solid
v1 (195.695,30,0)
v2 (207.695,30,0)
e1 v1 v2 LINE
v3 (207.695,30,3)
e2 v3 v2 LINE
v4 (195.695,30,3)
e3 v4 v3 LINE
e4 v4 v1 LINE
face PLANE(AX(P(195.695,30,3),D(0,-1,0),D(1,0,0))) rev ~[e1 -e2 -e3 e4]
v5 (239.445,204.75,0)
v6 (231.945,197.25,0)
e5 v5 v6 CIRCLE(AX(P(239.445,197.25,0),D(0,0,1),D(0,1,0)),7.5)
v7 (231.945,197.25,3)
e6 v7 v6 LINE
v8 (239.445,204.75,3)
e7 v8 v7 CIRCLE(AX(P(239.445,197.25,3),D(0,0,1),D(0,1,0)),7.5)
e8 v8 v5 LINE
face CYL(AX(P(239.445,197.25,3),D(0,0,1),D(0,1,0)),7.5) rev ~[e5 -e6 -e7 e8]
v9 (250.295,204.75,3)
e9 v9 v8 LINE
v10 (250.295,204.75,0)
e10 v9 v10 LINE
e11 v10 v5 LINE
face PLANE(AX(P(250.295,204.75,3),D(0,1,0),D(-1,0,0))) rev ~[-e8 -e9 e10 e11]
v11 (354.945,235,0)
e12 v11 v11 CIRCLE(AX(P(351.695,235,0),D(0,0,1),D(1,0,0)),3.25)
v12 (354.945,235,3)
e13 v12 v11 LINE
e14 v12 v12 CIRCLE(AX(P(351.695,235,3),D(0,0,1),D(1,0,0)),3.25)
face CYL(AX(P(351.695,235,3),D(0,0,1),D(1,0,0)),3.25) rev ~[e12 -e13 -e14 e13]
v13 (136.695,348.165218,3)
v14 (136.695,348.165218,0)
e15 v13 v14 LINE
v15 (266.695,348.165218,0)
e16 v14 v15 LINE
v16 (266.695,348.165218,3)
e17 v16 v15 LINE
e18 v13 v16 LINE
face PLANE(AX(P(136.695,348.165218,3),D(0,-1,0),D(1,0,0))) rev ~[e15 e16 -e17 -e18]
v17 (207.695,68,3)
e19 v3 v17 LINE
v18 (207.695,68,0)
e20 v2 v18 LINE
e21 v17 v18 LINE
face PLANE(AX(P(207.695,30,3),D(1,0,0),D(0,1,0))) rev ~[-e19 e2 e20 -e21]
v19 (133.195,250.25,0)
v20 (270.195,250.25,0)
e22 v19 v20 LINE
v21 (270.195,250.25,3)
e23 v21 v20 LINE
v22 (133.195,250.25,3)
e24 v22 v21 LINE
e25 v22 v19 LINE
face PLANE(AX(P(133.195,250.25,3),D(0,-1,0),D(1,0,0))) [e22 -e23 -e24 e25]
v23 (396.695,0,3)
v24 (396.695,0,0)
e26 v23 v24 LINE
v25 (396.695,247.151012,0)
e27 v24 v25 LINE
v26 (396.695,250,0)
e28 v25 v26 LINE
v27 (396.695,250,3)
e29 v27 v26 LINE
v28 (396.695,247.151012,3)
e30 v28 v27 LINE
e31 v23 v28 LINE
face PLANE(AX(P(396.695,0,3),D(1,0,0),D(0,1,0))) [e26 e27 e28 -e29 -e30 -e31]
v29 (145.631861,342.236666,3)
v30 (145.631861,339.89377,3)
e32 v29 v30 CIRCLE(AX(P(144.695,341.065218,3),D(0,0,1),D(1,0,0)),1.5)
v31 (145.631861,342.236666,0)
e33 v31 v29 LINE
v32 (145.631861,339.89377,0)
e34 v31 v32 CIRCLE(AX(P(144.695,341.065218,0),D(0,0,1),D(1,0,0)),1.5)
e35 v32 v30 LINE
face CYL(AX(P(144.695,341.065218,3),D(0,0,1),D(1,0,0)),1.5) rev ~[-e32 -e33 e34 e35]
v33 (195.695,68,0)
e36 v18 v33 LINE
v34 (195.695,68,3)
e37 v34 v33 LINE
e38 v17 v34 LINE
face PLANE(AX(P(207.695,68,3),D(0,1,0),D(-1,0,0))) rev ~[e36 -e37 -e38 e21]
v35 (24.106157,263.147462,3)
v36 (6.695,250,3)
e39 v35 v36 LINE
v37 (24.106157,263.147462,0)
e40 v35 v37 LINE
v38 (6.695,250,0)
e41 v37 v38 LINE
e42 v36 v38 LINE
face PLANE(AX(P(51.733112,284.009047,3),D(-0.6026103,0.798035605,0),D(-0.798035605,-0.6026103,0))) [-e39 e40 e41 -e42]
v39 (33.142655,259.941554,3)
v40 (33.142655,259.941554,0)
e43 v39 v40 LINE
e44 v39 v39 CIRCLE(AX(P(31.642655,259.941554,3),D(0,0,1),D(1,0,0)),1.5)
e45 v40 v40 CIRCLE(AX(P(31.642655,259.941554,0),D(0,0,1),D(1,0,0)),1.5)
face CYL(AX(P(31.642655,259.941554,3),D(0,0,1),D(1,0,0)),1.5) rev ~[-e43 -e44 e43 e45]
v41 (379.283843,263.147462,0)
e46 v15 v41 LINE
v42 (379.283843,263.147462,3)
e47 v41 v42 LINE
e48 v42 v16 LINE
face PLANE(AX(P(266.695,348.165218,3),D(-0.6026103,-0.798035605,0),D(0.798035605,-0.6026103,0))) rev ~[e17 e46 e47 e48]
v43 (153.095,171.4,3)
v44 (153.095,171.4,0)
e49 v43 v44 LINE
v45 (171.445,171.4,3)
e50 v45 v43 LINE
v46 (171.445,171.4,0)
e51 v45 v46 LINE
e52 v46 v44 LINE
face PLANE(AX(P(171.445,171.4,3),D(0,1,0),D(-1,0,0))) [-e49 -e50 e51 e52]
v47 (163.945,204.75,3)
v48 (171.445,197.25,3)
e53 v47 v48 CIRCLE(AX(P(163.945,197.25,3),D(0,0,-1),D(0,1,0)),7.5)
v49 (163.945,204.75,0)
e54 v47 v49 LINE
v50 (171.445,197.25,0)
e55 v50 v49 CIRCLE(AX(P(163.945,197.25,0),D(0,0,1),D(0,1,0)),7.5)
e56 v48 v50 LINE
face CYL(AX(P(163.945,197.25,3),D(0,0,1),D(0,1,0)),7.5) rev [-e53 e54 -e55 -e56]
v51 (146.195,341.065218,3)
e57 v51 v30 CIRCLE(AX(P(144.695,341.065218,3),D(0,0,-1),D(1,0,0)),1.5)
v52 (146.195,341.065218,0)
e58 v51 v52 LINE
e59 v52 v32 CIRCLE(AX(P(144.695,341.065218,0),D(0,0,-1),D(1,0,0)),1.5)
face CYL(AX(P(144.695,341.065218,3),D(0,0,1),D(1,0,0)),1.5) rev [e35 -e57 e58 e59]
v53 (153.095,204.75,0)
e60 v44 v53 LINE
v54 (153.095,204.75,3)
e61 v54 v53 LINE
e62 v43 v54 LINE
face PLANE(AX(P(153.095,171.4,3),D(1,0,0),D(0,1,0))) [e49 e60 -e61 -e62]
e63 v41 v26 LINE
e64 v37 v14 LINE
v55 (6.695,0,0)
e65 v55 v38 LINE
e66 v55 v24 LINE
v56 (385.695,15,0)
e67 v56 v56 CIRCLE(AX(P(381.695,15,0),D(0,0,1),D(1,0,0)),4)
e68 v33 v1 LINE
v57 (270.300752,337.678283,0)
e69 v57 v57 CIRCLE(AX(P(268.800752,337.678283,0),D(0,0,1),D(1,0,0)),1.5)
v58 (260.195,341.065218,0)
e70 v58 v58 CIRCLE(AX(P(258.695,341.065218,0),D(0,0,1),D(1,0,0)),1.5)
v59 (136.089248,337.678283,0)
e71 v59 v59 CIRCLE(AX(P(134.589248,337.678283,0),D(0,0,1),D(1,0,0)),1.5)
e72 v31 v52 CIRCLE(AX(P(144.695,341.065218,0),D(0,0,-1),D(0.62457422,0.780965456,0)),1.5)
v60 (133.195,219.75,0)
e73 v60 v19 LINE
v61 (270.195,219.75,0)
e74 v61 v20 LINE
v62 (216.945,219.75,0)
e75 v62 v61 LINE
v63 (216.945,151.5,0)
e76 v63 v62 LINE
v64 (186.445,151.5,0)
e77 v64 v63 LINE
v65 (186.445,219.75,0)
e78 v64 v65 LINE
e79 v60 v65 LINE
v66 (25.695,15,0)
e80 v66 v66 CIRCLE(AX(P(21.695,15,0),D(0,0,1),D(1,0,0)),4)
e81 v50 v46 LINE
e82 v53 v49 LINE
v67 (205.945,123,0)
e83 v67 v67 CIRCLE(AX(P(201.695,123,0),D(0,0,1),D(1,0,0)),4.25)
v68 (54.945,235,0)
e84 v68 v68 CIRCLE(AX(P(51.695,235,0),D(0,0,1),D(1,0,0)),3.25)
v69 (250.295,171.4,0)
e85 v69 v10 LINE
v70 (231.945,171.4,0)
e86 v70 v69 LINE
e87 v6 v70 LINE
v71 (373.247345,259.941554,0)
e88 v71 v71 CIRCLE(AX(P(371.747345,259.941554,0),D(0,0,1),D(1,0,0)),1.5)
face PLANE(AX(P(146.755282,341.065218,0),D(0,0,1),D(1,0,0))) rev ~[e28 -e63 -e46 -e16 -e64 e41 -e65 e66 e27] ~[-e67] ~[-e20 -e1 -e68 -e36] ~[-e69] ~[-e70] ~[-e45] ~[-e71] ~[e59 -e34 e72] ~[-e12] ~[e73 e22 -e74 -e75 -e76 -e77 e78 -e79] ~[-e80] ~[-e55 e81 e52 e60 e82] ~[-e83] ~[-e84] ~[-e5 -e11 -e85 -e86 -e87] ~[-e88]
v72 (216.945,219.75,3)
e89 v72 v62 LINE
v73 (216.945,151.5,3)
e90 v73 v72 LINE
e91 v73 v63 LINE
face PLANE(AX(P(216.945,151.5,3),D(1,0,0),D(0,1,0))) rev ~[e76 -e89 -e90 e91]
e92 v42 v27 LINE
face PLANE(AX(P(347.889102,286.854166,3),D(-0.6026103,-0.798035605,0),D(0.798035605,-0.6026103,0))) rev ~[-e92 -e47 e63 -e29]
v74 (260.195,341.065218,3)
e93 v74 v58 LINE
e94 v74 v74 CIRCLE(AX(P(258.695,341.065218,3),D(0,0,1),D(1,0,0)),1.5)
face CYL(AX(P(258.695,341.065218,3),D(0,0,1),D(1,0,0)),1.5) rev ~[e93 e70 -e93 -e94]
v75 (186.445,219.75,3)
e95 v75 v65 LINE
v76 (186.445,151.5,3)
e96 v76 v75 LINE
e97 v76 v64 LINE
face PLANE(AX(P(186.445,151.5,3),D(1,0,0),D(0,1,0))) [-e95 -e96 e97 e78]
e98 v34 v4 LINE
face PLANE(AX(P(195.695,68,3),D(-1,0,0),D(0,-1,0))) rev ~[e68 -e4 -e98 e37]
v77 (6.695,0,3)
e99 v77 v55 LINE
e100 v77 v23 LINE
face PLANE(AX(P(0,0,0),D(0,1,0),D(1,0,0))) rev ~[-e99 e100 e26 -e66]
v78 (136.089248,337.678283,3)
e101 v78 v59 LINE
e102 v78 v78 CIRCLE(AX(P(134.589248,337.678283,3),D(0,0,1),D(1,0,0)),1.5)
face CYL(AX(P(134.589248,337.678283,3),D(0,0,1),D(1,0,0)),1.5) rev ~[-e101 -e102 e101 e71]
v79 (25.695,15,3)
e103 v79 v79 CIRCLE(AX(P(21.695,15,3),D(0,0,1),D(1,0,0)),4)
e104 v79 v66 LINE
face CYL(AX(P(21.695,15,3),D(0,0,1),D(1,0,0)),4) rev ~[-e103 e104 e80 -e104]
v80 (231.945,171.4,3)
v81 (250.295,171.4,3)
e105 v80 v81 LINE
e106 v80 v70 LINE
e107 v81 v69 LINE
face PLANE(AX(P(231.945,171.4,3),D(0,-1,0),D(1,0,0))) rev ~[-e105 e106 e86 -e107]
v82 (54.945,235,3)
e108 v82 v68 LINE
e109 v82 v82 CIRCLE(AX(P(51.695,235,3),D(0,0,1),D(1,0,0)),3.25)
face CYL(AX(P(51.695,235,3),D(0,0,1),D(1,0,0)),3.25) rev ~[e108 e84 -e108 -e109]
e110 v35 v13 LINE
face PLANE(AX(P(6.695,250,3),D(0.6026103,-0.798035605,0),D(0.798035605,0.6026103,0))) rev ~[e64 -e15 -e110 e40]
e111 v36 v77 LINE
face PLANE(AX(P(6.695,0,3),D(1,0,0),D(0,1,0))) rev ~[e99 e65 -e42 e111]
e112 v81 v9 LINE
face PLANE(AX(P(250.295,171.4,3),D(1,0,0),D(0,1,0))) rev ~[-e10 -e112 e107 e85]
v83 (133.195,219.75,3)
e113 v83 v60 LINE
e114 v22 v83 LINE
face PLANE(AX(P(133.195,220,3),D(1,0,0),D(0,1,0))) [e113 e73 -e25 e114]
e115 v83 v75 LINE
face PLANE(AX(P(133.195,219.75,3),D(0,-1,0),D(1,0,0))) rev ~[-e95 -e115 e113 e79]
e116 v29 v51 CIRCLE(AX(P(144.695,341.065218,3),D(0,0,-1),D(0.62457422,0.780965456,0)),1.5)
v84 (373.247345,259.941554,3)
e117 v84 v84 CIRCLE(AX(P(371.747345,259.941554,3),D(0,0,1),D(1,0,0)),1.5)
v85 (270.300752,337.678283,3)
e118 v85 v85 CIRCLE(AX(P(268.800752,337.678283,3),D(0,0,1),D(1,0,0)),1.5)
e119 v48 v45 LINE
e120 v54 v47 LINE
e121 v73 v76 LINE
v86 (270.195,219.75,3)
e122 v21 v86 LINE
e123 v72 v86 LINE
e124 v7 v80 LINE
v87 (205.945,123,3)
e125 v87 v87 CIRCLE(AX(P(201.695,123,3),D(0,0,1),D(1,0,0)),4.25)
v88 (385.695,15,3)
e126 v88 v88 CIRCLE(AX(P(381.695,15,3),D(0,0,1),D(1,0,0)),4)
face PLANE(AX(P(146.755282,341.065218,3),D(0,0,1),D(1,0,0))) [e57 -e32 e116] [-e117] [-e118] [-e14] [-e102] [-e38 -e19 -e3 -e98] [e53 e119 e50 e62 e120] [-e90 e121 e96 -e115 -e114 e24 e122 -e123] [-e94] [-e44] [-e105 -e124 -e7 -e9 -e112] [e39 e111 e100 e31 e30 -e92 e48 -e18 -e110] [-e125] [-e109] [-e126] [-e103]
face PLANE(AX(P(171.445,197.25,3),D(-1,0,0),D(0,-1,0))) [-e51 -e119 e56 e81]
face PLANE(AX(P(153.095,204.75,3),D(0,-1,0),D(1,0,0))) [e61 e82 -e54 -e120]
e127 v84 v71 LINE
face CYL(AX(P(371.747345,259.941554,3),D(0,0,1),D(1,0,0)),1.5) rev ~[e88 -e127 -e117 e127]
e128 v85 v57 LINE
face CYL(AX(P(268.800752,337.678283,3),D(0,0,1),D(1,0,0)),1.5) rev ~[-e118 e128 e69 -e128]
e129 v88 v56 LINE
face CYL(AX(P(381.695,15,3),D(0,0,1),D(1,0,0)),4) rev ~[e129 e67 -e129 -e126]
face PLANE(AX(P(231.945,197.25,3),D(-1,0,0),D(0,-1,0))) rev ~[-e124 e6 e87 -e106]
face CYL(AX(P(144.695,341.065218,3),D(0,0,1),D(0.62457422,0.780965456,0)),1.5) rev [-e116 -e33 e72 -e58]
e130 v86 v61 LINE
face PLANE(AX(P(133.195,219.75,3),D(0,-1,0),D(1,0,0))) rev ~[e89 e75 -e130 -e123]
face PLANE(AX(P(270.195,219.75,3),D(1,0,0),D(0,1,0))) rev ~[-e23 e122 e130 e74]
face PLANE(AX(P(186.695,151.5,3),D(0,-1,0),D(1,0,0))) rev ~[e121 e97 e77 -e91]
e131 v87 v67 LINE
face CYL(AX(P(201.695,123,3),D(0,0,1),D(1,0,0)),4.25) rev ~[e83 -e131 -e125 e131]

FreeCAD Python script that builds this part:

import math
import FreeCAD as App
import Part
import Sketcher


def add_polygon(sketch, points):
    """Adds a closed chain of lines whose ends are joined by coincident constraints."""
    first, n = sketch.GeometryCount, len(points)
    for a, b in zip(points, points[1:] + points[:1]):
        sketch.addGeometry(Part.LineSegment(App.Vector(*a, 0), App.Vector(*b, 0)), False)
    for i in range(n):
        sketch.addConstraint(Sketcher.Constraint("Coincident", first + i, 2, first + (i + 1) % n, 1))

doc = App.newDocument("Part")
body = doc.addObject("PartDesign::Body", "Body")

# Sketch on XY plane
sketch1 = body.newObject("Sketcher::SketchObject", "Sketch")
sketch1.AttachmentSupport = (doc.getObject("XY_Plane"), [""])
sketch1.MapMode = "FlatFace"
add_polygon(sketch1, [(0, 0), (403.4, 0), (403.4, 241), (274.4, 359.5), (129, 359.5), (0, 241)])  # lines 0-5
add_polygon(sketch1, [(246.7, 223), (216.7, 223), (216.7, 219.8), (186.7, 219.8), (186.7, 223), (156.7, 223), (156.7, 253), (246.7, 253)])  # lines 6-13
sketch1.addConstraint(Sketcher.Constraint("Horizontal", 0))
sketch1.addConstraint(Sketcher.Constraint("Vertical", 1))
sketch1.addConstraint(Sketcher.Constraint("Horizontal", 3))
sketch1.addConstraint(Sketcher.Constraint("Vertical", 5))
sketch1.addConstraint(Sketcher.Constraint("Horizontal", 6))
sketch1.addConstraint(Sketcher.Constraint("Vertical", 7))
sketch1.addConstraint(Sketcher.Constraint("Horizontal", 8))
sketch1.addConstraint(Sketcher.Constraint("Vertical", 9))
sketch1.addConstraint(Sketcher.Constraint("Horizontal", 10))
sketch1.addConstraint(Sketcher.Constraint("Vertical", 11))
sketch1.addConstraint(Sketcher.Constraint("Horizontal", 12))
sketch1.addConstraint(Sketcher.Constraint("Vertical", 13))
sketch1.addConstraint(Sketcher.Constraint("Coincident", 5, 2, -1, 1))
sketch1.addConstraint(Sketcher.Constraint("Horizontal", 1, 2, 4, 2))
sketch1.addConstraint(Sketcher.Constraint("Horizontal", 6, 2, 9, 2))
sketch1.addConstraint(Sketcher.Constraint("Equal", 6, 8))
sketch1.addConstraint(Sketcher.Constraint("Equal", 8, 10))
sketch1.addConstraint(Sketcher.Constraint("Equal", 10, 11))
sketch1.addConstraint(Sketcher.Constraint("Equal", 2, 4))
sketch1.addConstraint(Sketcher.Constraint("DistanceX", 6, 2, 6, 1, 30.0))
sketch1.addConstraint(Sketcher.Constraint("DistanceY", 1, 1, 1, 2, 241.0))
sketch1.addConstraint(Sketcher.Constraint("DistanceY", -1, 1, 6, 2, 223.0))
sketch1.addConstraint(Sketcher.Constraint("DistanceX", 0, 1, 0, 2, 403.39))
sketch1.addConstraint(Sketcher.Constraint("DistanceX", 3, 2, 3, 1, 145.43))
sketch1.addConstraint(Sketcher.Constraint("DistanceY", -1, 1, 2, 2, 359.5))
sketch1.addConstraint(Sketcher.Constraint("DistanceY", 7, 2, 7, 1, 3.175))
sketch1.addConstraint(Sketcher.Constraint("DistanceX", -1, 1, 6, 2, 216.695))
pad1 = body.newObject("PartDesign::Pad", "Pad")
pad1.Profile = sketch1
pad1.Length = 3

# Sketch on XY plane
sketch2 = body.newObject("Sketcher::SketchObject", "Sketch001")
sketch2.AttachmentSupport = (doc.getObject("XY_Plane"), [""])
sketch2.MapMode = "FlatFace"
sketch2.AttachmentOffset = App.Placement(App.Vector(0, 0, 3), App.Rotation())
add_polygon(sketch2, [(-44, 365), (-44, 0), (7, 0), (7, 365)])  # lines 0-3
add_polygon(sketch2, [(397, 356), (397, 0), (518, 0), (518, 356)])  # lines 4-7
sketch2.addConstraint(Sketcher.Constraint("Vertical", 0))
sketch2.addConstraint(Sketcher.Constraint("Horizontal", 1))
sketch2.addConstraint(Sketcher.Constraint("Vertical", 2))
sketch2.addConstraint(Sketcher.Constraint("Horizontal", 3))
sketch2.addConstraint(Sketcher.Constraint("Vertical", 4))
sketch2.addConstraint(Sketcher.Constraint("Horizontal", 5))
sketch2.addConstraint(Sketcher.Constraint("Vertical", 6))
sketch2.addConstraint(Sketcher.Constraint("Horizontal", 7))
sketch2.addConstraint(Sketcher.Constraint("PointOnObject", 0, 2, -1))
sketch2.addConstraint(Sketcher.Constraint("PointOnObject", 4, 2, -1))
sketch2.addConstraint(Sketcher.Constraint("DistanceX", 1, 2, 4, 2, 390.0))
sketch2.addConstraint(Sketcher.Constraint("DistanceX", -1, 1, 1, 2, 6.695))
sketch2.addConstraint(Sketcher.Constraint("DistanceX", 5, 1, 5, 2, 121.011581))
sketch2.addConstraint(Sketcher.Constraint("DistanceY", 0, 2, 0, 1, 364.883291))
sketch2.addConstraint(Sketcher.Constraint("DistanceY", 4, 2, 4, 1, 356.316712))
sketch2.addConstraint(Sketcher.Constraint("DistanceX", 1, 1, 1, 2, 50.575265))
pocket1 = body.newObject("PartDesign::Pocket", "Pocket")
pocket1.Profile = sketch2
pocket1.Length = 10

# Sketch on XY plane
sketch3 = body.newObject("Sketcher::SketchObject", "Sketch002")
sketch3.AttachmentSupport = (doc.getObject("XY_Plane"), [""])
sketch3.MapMode = "FlatFace"
sketch3.AttachmentOffset = App.Placement(App.Vector(0, 0, 3), App.Rotation())
add_polygon(sketch3, [(7, 250), (7, 0), (397, 0), (397, 250)])  # lines 0-3
sketch3.addConstraint(Sketcher.Constraint("Vertical", 0))
sketch3.addConstraint(Sketcher.Constraint("Horizontal", 1))
sketch3.addConstraint(Sketcher.Constraint("Vertical", 2))
sketch3.addConstraint(Sketcher.Constraint("Horizontal", 3))
sketch3.addConstraint(Sketcher.Constraint("PointOnObject", 0, 2, -1))
sketch3.addConstraint(Sketcher.Constraint("DistanceX", 1, 1, 1, 2, 390.0))
sketch3.addConstraint(Sketcher.Constraint("DistanceY", 0, 2, 0, 1, 250.0))
sketch3.addConstraint(Sketcher.Constraint("DistanceX", -1, 1, 0, 2, 6.695))
pad2 = body.newObject("PartDesign::Pad", "Pad001")
pad2.Profile = sketch3
pad2.Length = 3
pad2.Reversed = True

# Sketch on XY plane
sketch4 = body.newObject("Sketcher::SketchObject", "Sketch003")
sketch4.AttachmentSupport = (doc.getObject("XY_Plane"), [""])
sketch4.MapMode = "FlatFace"
sketch4.AttachmentOffset = App.Placement(App.Vector(0, 0, 3), App.Rotation())
add_polygon(sketch4, [(172, 250), (172, 220), (232, 220), (232, 250)])  # lines 0-3
sketch4.addConstraint(Sketcher.Constraint("Vertical", 0))
sketch4.addConstraint(Sketcher.Constraint("Horizontal", 1))
sketch4.addConstraint(Sketcher.Constraint("Vertical", 2))
sketch4.addConstraint(Sketcher.Constraint("Horizontal", 3))
sketch4.addConstraint(Sketcher.Constraint("DistanceX", 1, 1, 1, 2, 60.0))
sketch4.addConstraint(Sketcher.Constraint("DistanceY", 0, 2, 0, 1, 30.0))
sketch4.addConstraint(Sketcher.Constraint("DistanceY", -1, 1, 0, 2, 220.0))
sketch4.addConstraint(Sketcher.Constraint("DistanceX", -1, 1, 0, 2, 171.695))
pocket2 = body.newObject("PartDesign::Pocket", "Pocket001")
pocket2.Profile = sketch4
pocket2.Length = 3

# Sketch on XY plane
sketch5 = body.newObject("Sketcher::SketchObject", "Sketch004")
sketch5.AttachmentSupport = (doc.getObject("XY_Plane"), [""])
sketch5.MapMode = "FlatFace"
sketch5.AttachmentOffset = App.Placement(App.Vector(0, 0, 3), App.Rotation())
add_polygon(sketch5, [(156.7, 253), (156.7, 250), (246.7, 250), (246.7, 253)])  # lines 0-3
sketch5.addConstraint(Sketcher.Constraint("Vertical", 0))
sketch5.addConstraint(Sketcher.Constraint("Horizontal", 1))
sketch5.addConstraint(Sketcher.Constraint("Vertical", 2))
sketch5.addConstraint(Sketcher.Constraint("Horizontal", 3))
sketch5.addConstraint(Sketcher.Constraint("DistanceX", 1, 1, 1, 2, 90.0))
sketch5.addConstraint(Sketcher.Constraint("DistanceY", 0, 2, 0, 1, 3.0))
sketch5.addConstraint(Sketcher.Constraint("DistanceY", -1, 1, 0, 2, 250.0))
sketch5.addConstraint(Sketcher.Constraint("DistanceX", -1, 1, 0, 2, 156.695))
pad3 = body.newObject("PartDesign::Pad", "Pad002")
pad3.Profile = sketch5
pad3.Length = 3
pad3.Reversed = True

# Sketch on XY plane
sketch6 = body.newObject("Sketcher::SketchObject", "Sketch005")
sketch6.AttachmentSupport = (doc.getObject("XY_Plane"), [""])
sketch6.MapMode = "FlatFace"
sketch6.AttachmentOffset = App.Placement(App.Vector(0, 0, 3), App.Rotation())
add_polygon(sketch6, [(187, 220), (187, 190), (217, 190), (217, 220)])  # lines 0-3
sketch6.addConstraint(Sketcher.Constraint("Vertical", 0))
sketch6.addConstraint(Sketcher.Constraint("Horizontal", 1))
sketch6.addConstraint(Sketcher.Constraint("Vertical", 2))
sketch6.addConstraint(Sketcher.Constraint("Horizontal", 3))
sketch6.addConstraint(Sketcher.Constraint("Equal", 3, 0))
sketch6.addConstraint(Sketcher.Constraint("DistanceX", 1, 1, 1, 2, 30.0))
sketch6.addConstraint(Sketcher.Constraint("DistanceY", -1, 1, 0, 2, 190.0))
sketch6.addConstraint(Sketcher.Constraint("DistanceX", -1, 1, 0, 2, 186.695))
pocket3 = body.newObject("PartDesign::Pocket", "Pocket002")
pocket3.Profile = sketch6
pocket3.Length = 3

# Sketch on XY plane
sketch7 = body.newObject("Sketcher::SketchObject", "Sketch006")
sketch7.AttachmentSupport = (doc.getObject("XY_Plane"), [""])
sketch7.MapMode = "FlatFace"
sketch7.AttachmentOffset = App.Placement(App.Vector(0, 0, 3), App.Rotation())
add_polygon(sketch7, [(187, 190), (187, 152), (217, 152), (217, 190)])  # lines 0-3
sketch7.addConstraint(Sketcher.Constraint("Vertical", 0))
sketch7.addConstraint(Sketcher.Constraint("Horizontal", 1))
sketch7.addConstraint(Sketcher.Constraint("Vertical", 2))
sketch7.addConstraint(Sketcher.Constraint("Horizontal", 3))
sketch7.addConstraint(Sketcher.Constraint("DistanceX", 1, 1, 1, 2, 30.0))
sketch7.addConstraint(Sketcher.Constraint("DistanceY", 0, 2, 0, 1, 38.5))
sketch7.addConstraint(Sketcher.Constraint("DistanceY", -1, 1, 2, 2, 190.0))
sketch7.addConstraint(Sketcher.Constraint("DistanceX", -1, 1, 0, 2, 186.695))
pocket4 = body.newObject("PartDesign::Pocket", "Pocket003")
pocket4.Profile = sketch7
pocket4.Length = 3

# Sketch on XY plane
sketch8 = body.newObject("Sketcher::SketchObject", "Sketch007")
sketch8.AttachmentSupport = (doc.getObject("XY_Plane"), [""])
sketch8.MapMode = "FlatFace"
sketch8.AttachmentOffset = App.Placement(App.Vector(0, 0, 3), App.Rotation())
add_polygon(sketch8, [(133, 250), (133, 220), (172, 220), (172, 250)])  # lines 0-3
add_polygon(sketch8, [(232, 250), (232, 220), (270, 220), (270, 250)])  # lines 4-7
sketch8.addConstraint(Sketcher.Constraint("Vertical", 0))
sketch8.addConstraint(Sketcher.Constraint("Horizontal", 1))
sketch8.addConstraint(Sketcher.Constraint("Vertical", 2))
sketch8.addConstraint(Sketcher.Constraint("Horizontal", 3))
sketch8.addConstraint(Sketcher.Constraint("Vertical", 4))
sketch8.addConstraint(Sketcher.Constraint("Horizontal", 5))
sketch8.addConstraint(Sketcher.Constraint("Vertical", 6))
sketch8.addConstraint(Sketcher.Constraint("Horizontal", 7))
sketch8.addConstraint(Sketcher.Constraint("Horizontal", 1, 2, 4, 2))
sketch8.addConstraint(Sketcher.Constraint("Horizontal", 3, 2, 6, 2))
sketch8.addConstraint(Sketcher.Constraint("Equal", 3, 5))
sketch8.addConstraint(Sketcher.Constraint("DistanceY", 0, 2, 0, 1, 30.0))
sketch8.addConstraint(Sketcher.Constraint("DistanceX", 1, 1, 1, 2, 38.5))
sketch8.addConstraint(Sketcher.Constraint("DistanceY", -1, 1, 0, 2, 220.0))
sketch8.addConstraint(Sketcher.Constraint("DistanceX", 1, 2, 4, 2, 60.0))
sketch8.addConstraint(Sketcher.Constraint("DistanceX", -1, 1, 0, 2, 133.195))
pocket5 = body.newObject("PartDesign::Pocket", "Pocket004")
pocket5.Profile = sketch8
pocket5.Length = 3

# Sketch on XY plane
sketch9 = body.newObject("Sketcher::SketchObject", "Sketch008")
sketch9.AttachmentSupport = (doc.getObject("XY_Plane"), [""])
sketch9.MapMode = "FlatFace"
sketch9.AttachmentOffset = App.Placement(App.Vector(0, 0, 3), App.Rotation())
add_polygon(sketch9, [(133.19, 250.25), (133.19, 250), (270.19, 250), (270.19, 250.25)])  # lines 0-3
add_polygon(sketch9, [(133.19, 220), (133.19, 219.75), (270.19, 219.75), (270.19, 220)])  # lines 4-7
sketch9.addConstraint(Sketcher.Constraint("Vertical", 0))
sketch9.addConstraint(Sketcher.Constraint("Horizontal", 1))
sketch9.addConstraint(Sketcher.Constraint("Vertical", 2))
sketch9.addConstraint(Sketcher.Constraint("Horizontal", 3))
sketch9.addConstraint(Sketcher.Constraint("Vertical", 4))
sketch9.addConstraint(Sketcher.Constraint("Horizontal", 5))
sketch9.addConstraint(Sketcher.Constraint("Vertical", 6))
sketch9.addConstraint(Sketcher.Constraint("Horizontal", 7))
sketch9.addConstraint(Sketcher.Constraint("Vertical", 3, 2, 4, 2))
sketch9.addConstraint(Sketcher.Constraint("Vertical", 2, 2, 5, 2))
sketch9.addConstraint(Sketcher.Constraint("Equal", 2, 4))
sketch9.addConstraint(Sketcher.Constraint("DistanceX", 1, 1, 1, 2, 137.0))
sketch9.addConstraint(Sketcher.Constraint("DistanceY", -1, 1, 0, 2, 250.0))
sketch9.addConstraint(Sketcher.Constraint("DistanceY", -1, 1, 6, 2, 220.0))
sketch9.addConstraint(Sketcher.Constraint("DistanceY", 0, 2, 0, 1, 0.25))
sketch9.addConstraint(Sketcher.Constraint("DistanceX", -1, 1, 0, 2, 133.195))
pocket6 = body.newObject("PartDesign::Pocket", "Pocket005")
pocket6.Profile = sketch9
pocket6.Length = 3

# Sketch on XY plane
sketch10 = body.newObject("Sketcher::SketchObject", "Sketch009")
sketch10.AttachmentSupport = (doc.getObject("XY_Plane"), [""])
sketch10.MapMode = "FlatFace"
sketch10.AttachmentOffset = App.Placement(App.Vector(0, 0, 3), App.Rotation())
add_polygon(sketch10, [(186.44, 219.75), (186.44, 151.5), (186.69, 151.5), (186.69, 219.75)])  # lines 0-3
add_polygon(sketch10, [(216.69, 219.75), (216.69, 151.5), (216.94, 151.5), (216.94, 219.75)])  # lines 4-7
sketch10.addConstraint(Sketcher.Constraint("Vertical", 0))
sketch10.addConstraint(Sketcher.Constraint("Horizontal", 1))
sketch10.addConstraint(Sketcher.Constraint("Vertical", 2))
sketch10.addConstraint(Sketcher.Constraint("Horizontal", 3))
sketch10.addConstraint(Sketcher.Constraint("Vertical", 4))
sketch10.addConstraint(Sketcher.Constraint("Horizontal", 5))
sketch10.addConstraint(Sketcher.Constraint("Vertical", 6))
sketch10.addConstraint(Sketcher.Constraint("Horizontal", 7))
sketch10.addConstraint(Sketcher.Constraint("Horizontal", 1, 2, 4, 2))
sketch10.addConstraint(Sketcher.Constraint("Horizontal", 3, 2, 6, 2))
sketch10.addConstraint(Sketcher.Constraint("Equal", 3, 5))
sketch10.addConstraint(Sketcher.Constraint("DistanceX", 1, 2, 4, 2, 30.0))
sketch10.addConstraint(Sketcher.Constraint("DistanceX", 1, 1, 1, 2, 0.25))
sketch10.addConstraint(Sketcher.Constraint("DistanceY", 0, 2, 0, 1, 68.25))
sketch10.addConstraint(Sketcher.Constraint("DistanceY", -1, 1, 0, 2, 151.5))
sketch10.addConstraint(Sketcher.Constraint("DistanceX", -1, 1, 0, 2, 186.445))
pocket7 = body.newObject("PartDesign::Pocket", "Pocket006")
pocket7.Profile = sketch10
pocket7.Length = 3

# Sketch on XY plane
sketch11 = body.newObject("Sketcher::SketchObject", "Sketch010")
sketch11.AttachmentSupport = (doc.getObject("XY_Plane"), [""])
sketch11.MapMode = "FlatFace"
sketch11.AttachmentOffset = App.Placement(App.Vector(0, 0, 3), App.Rotation())
add_polygon(sketch11, [(137, 348), (267, 348), (397, 250), (402, 389), (24, 412), (7, 250)])  # lines 0-5
sketch11.addConstraint(Sketcher.Constraint("Horizontal", 0))
sketch11.addConstraint(Sketcher.Constraint("Horizontal", 1, 2, 4, 2))
sketch11.addConstraint(Sketcher.Constraint("Equal", 1, 5))
sketch11.addConstraint(Sketcher.Constraint("DistanceX", 0, 1, 0, 2, 130.0))
sketch11.addConstraint(Sketcher.Constraint("DistanceY", -1, 1, 1, 2, 250.0))
sketch11.addConstraint(Sketcher.Constraint("DistanceX", 0, 2, 1, 2, 130.0))
sketch11.addConstraint(Sketcher.Constraint("Distance", 1, 162.9))
sketch11.addConstraint(Sketcher.Constraint("DistanceX", -1, 1, 0, 2, 266.695))
sketch11.addConstraint(Sketcher.Constraint("DistanceX", -1, 1, 3, 2, 24.2519))
sketch11.addConstraint(Sketcher.Constraint("Distance", 4, 163.06582))
sketch11.addConstraint(Sketcher.Constraint("Distance", 2, 139.418536))
sketch11.addConstraint(Sketcher.Constraint("Distance", 3, 378.678667))
pocket8 = body.newObject("PartDesign::Pocket", "Pocket007")
pocket8.Profile = sketch11
pocket8.Length = 3

# Sketch on XY plane
sketch12 = body.newObject("Sketcher::SketchObject", "Sketch011")
sketch12.AttachmentSupport = (doc.getObject("XY_Plane"), [""])
sketch12.MapMode = "FlatFace"
sketch12.AttachmentOffset = App.Placement(App.Vector(0, 0, 3), App.Rotation())
add_polygon(sketch12, [(52, 284), (7, 250), (32, 217)])  # lines 0-2
add_polygon(sketch12, [(397, 250), (348, 287), (357, 226)])  # lines 3-5
sketch12.addConstraint(Sketcher.Constraint("Perpendicular", 0, 1))
sketch12.addConstraint(Sketcher.Constraint("Horizontal", 0, 2, 5, 2))
sketch12.addConstraint(Sketcher.Constraint("DistanceY", -1, 1, 0, 2, 250.0))
sketch12.addConstraint(Sketcher.Constraint("DistanceX", 0, 2, 5, 2, 390.0))
sketch12.addConstraint(Sketcher.Constraint("DistanceX", -1, 1, 0, 2, 6.695))
sketch12.addConstraint(Sketcher.Constraint("Distance", 0, 56.436219))
sketch12.addConstraint(Sketcher.Constraint("Distance", 1, 41.41212))
sketch12.addConstraint(Sketcher.Constraint("DistanceX", -1, 1, 1, 2, 31.65037))
sketch12.addConstraint(Sketcher.Constraint("DistanceX", 2, 2, 3, 2, 296.15599))
sketch12.addConstraint(Sketcher.Constraint("DistanceY", 2, 2, 3, 2, 2.845119))
sketch12.addConstraint(Sketcher.Constraint("DistanceX", 3, 2, 4, 2, 8.734251))
sketch12.addConstraint(Sketcher.Constraint("DistanceY", 1, 2, 4, 2, 8.77756))
pad4 = body.newObject("PartDesign::Pad", "Pad003")
pad4.Profile = sketch12
pad4.Length = 3
pad4.Reversed = True

# Sketch on XY plane
sketch13 = body.newObject("Sketcher::SketchObject", "Sketch012")
sketch13.AttachmentSupport = (doc.getObject("XY_Plane"), [""])
sketch13.MapMode = "FlatFace"
sketch13.AttachmentOffset = App.Placement(App.Vector(0, 0, 3), App.Rotation())
sketch13.addGeometry(Part.Circle(App.Vector(21.7, 15, 0), App.Vector(0, 0, 1), 4), False)
sketch13.addGeometry(Part.Circle(App.Vector(381.7, 15, 0), App.Vector(0, 0, 1), 4), False)
sketch13.addGeometry(Part.Circle(App.Vector(51.7, 235, 0), App.Vector(0, 0, 1), 4), False)
sketch13.addGeometry(Part.Circle(App.Vector(351.7, 235, 0), App.Vector(0, 0, 1), 4), False)
sketch13.addConstraint(Sketcher.Constraint("Equal", 0, 1))
sketch13.addConstraint(Sketcher.Constraint("Equal", 1, 2))
sketch13.addConstraint(Sketcher.Constraint("Equal", 2, 3))
sketch13.addConstraint(Sketcher.Constraint("Horizontal", 0, 3, 1, 3))
sketch13.addConstraint(Sketcher.Constraint("Horizontal", 2, 3, 3, 3))
sketch13.addConstraint(Sketcher.Constraint("Diameter", 0, 8.0))
sketch13.addConstraint(Sketcher.Constraint("DistanceY", -1, 1, 0, 3, 15.0))
sketch13.addConstraint(Sketcher.Constraint("DistanceY", -1, 1, 2, 3, 235.0))
sketch13.addConstraint(Sketcher.Constraint("DistanceX", 0, 3, 1, 3, 360.0))
sketch13.addConstraint(Sketcher.Constraint("DistanceX", 0, 3, 2, 3, 30.0))
sketch13.addConstraint(Sketcher.Constraint("DistanceX", 3, 3, 1, 3, 30.0))
sketch13.addConstraint(Sketcher.Constraint("DistanceX", -1, 1, 0, 3, 21.695))
pocket9 = body.newObject("PartDesign::Pocket", "Pocket008")
pocket9.Profile = sketch13
pocket9.Length = 3

# Sketch on XY plane
sketch14 = body.newObject("Sketcher::SketchObject", "Sketch013")
sketch14.AttachmentSupport = (doc.getObject("XY_Plane"), [""])
sketch14.MapMode = "FlatFace"
sketch14.AttachmentOffset = App.Placement(App.Vector(0, 0, 3), App.Rotation())
sketch14.addGeometry(Part.Circle(App.Vector(51.7, 235, 0), App.Vector(0, 0, 1), 4.2), False)
sketch14.addGeometry(Part.Circle(App.Vector(51.7, 235, 0), App.Vector(0, 0, 1), 3.2), False)
sketch14.addGeometry(Part.Circle(App.Vector(351.7, 235, 0), App.Vector(0, 0, 1), 4.2), False)
sketch14.addGeometry(Part.Circle(App.Vector(351.7, 235, 0), App.Vector(0, 0, 1), 3.2), False)
sketch14.addConstraint(Sketcher.Constraint("Coincident", 1, 3, 0, 3))
sketch14.addConstraint(Sketcher.Constraint("Coincident", 3, 3, 2, 3))
sketch14.addConstraint(Sketcher.Constraint("Equal", 0, 2))
sketch14.addConstraint(Sketcher.Constraint("Equal", 1, 3))
sketch14.addConstraint(Sketcher.Constraint("Horizontal", 1, 3, 2, 3))
sketch14.addConstraint(Sketcher.Constraint("Diameter", 0, 8.5))
sketch14.addConstraint(Sketcher.Constraint("Diameter", 1, 6.5))
sketch14.addConstraint(Sketcher.Constraint("DistanceY", -1, 1, 0, 3, 235.0))
sketch14.addConstraint(Sketcher.Constraint("DistanceX", 0, 3, 2, 3, 300.0))
sketch14.addConstraint(Sketcher.Constraint("DistanceX", -1, 1, 0, 3, 51.695))
pad5 = body.newObject("PartDesign::Pad", "Pad004")
pad5.Profile = sketch14
pad5.Length = 3
pad5.Reversed = True

# Sketch on XY plane
sketch15 = body.newObject("Sketcher::SketchObject", "Sketch014")
sketch15.AttachmentSupport = (doc.getObject("XY_Plane"), [""])
sketch15.MapMode = "FlatFace"
sketch15.AttachmentOffset = App.Placement(App.Vector(0, 0, 3), App.Rotation())
sketch15.addGeometry(Part.Circle(App.Vector(201.7, 35, 0), App.Vector(0, 0, 1), 4.2), False)
sketch15.addGeometry(Part.Circle(App.Vector(201.7, 123, 0), App.Vector(0, 0, 1), 4.2), False)
sketch15.addConstraint(Sketcher.Constraint("Equal", 0, 1))
sketch15.addConstraint(Sketcher.Constraint("Vertical", 0, 3, 1, 3))
sketch15.addConstraint(Sketcher.Constraint("Diameter", 0, 8.5))
sketch15.addConstraint(Sketcher.Constraint("DistanceY", -1, 1, 0, 3, 35.0))
sketch15.addConstraint(Sketcher.Constraint("DistanceY", -1, 1, 1, 3, 123.0))
sketch15.addConstraint(Sketcher.Constraint("DistanceX", -1, 1, 0, 3, 201.695))
pocket10 = body.newObject("PartDesign::Pocket", "Pocket009")
pocket10.Profile = sketch15
pocket10.Length = 3

# Sketch on XY plane
sketch16 = body.newObject("Sketcher::SketchObject", "Sketch015")
sketch16.AttachmentSupport = (doc.getObject("XY_Plane"), [""])
sketch16.MapMode = "FlatFace"
sketch16.AttachmentOffset = App.Placement(App.Vector(0, 0, 3), App.Rotation())
sketch16.addGeometry(Part.Circle(App.Vector(201.7, 38, 0), App.Vector(0, 0, 1), 4.2), False)
sketch16.addConstraint(Sketcher.Constraint("Diameter", 0, 8.5))
sketch16.addConstraint(Sketcher.Constraint("DistanceY", -1, 1, 0, 3, 38.0))
sketch16.addConstraint(Sketcher.Constraint("DistanceX", -1, 1, 0, 3, 201.695))
pocket11 = body.newObject("PartDesign::Pocket", "Pocket010")
pocket11.Profile = sketch16
pocket11.Length = 25

# Sketch on XY plane
sketch17 = body.newObject("Sketcher::SketchObject", "Sketch016")
sketch17.AttachmentSupport = (doc.getObject("XY_Plane"), [""])
sketch17.MapMode = "FlatFace"
sketch17.AttachmentOffset = App.Placement(App.Vector(0, 0, 3), App.Rotation())
sketch17.addGeometry(Part.ArcOfCircle(Part.Circle(App.Vector(201.7, 38, 0), App.Vector(0, 0, 1), 4.2), math.radians(-159), math.radians(-21)), False)
sketch17.addGeometry(Part.ArcOfCircle(Part.Circle(App.Vector(201.7, 35, 0), App.Vector(0, 0, 1), 4.2), math.radians(159), math.radians(360)), False)
sketch17.addGeometry(Part.ArcOfCircle(Part.Circle(App.Vector(201.7, 35, 0), App.Vector(0, 0, 1), 4.3), math.radians(0), math.radians(21)), False)
sketch17.addConstraint(Sketcher.Constraint("Coincident", 0, 1, 1, 1))
sketch17.addConstraint(Sketcher.Constraint("Tangent", 1, 2, 2, 1))
sketch17.addConstraint(Sketcher.Constraint("Coincident", 2, 2, 0, 2))
sketch17.addConstraint(Sketcher.Constraint("Equal", 0, 1))
sketch17.addConstraint(Sketcher.Constraint("Equal", 1, 2))
sketch17.addConstraint(Sketcher.Constraint("Horizontal", 2, 3, 1, 2))
sketch17.addConstraint(Sketcher.Constraint("Horizontal", 0, 1, 2, 2))
sketch17.addConstraint(Sketcher.Constraint("Radius", 0, 4.25))
sketch17.addConstraint(Sketcher.Constraint("DistanceY", -1, 1, 0, 3, 38.0))
sketch17.addConstraint(Sketcher.Constraint("DistanceY", -1, 1, 1, 3, 35.0))
sketch17.addConstraint(Sketcher.Constraint("DistanceX", -1, 1, 0, 3, 201.695))
pad6 = body.newObject("PartDesign::Pad", "Pad005")
pad6.Profile = sketch17
pad6.Length = 3
pad6.Reversed = True

# Sketch on XY plane
sketch18 = body.newObject("Sketcher::SketchObject", "Sketch017")
sketch18.AttachmentSupport = (doc.getObject("XY_Plane"), [""])
sketch18.MapMode = "FlatFace"
sketch18.AttachmentOffset = App.Placement(App.Vector(0, 0, 3), App.Rotation())
sketch18.addGeometry(Part.Circle(App.Vector(146.6, 341.1, 0), App.Vector(0, 0, 1), 1.5), False)
sketch18.addGeometry(Part.Circle(App.Vector(255, 341.1, 0), App.Vector(0, 0, 1), 1.5), False)
sketch18.addGeometry(Part.Circle(App.Vector(134.6, 337.7, 0), App.Vector(0, 0, 1), 1.5), False)
sketch18.addGeometry(Part.Circle(App.Vector(31.6, 259.9, 0), App.Vector(0, 0, 1), 1.5), False)
sketch18.addGeometry(Part.Circle(App.Vector(268.8, 337.7, 0), App.Vector(0, 0, 1), 1.5), False)
sketch18.addGeometry(Part.Circle(App.Vector(371.7, 259.9, 0), App.Vector(0, 0, 1), 1.5), False)
sketch18.addConstraint(Sketcher.Constraint("Equal", 0, 1))
sketch18.addConstraint(Sketcher.Constraint("Equal", 1, 2))
sketch18.addConstraint(Sketcher.Constraint("Equal", 2, 3))
sketch18.addConstraint(Sketcher.Constraint("Equal", 3, 4))
sketch18.addConstraint(Sketcher.Constraint("Equal", 4, 5))
sketch18.addConstraint(Sketcher.Constraint("Horizontal", 0, 3, 1, 3))
sketch18.addConstraint(Sketcher.Constraint("Horizontal", 2, 3, 4, 3))
sketch18.addConstraint(Sketcher.Constraint("Horizontal", 3, 3, 5, 3))
sketch18.addConstraint(Sketcher.Constraint("Diameter", 0, 3.0))
sketch18.addConstraint(Sketcher.Constraint("DistanceX", -1, 1, 2, 3, 134.589248))
sketch18.addConstraint(Sketcher.Constraint("DistanceX", -1, 1, 4, 3, 268.800752))
sketch18.addConstraint(Sketcher.Constraint("DistanceX", 0, 3, 1, 3, 108.40857))
sketch18.addConstraint(Sketcher.Constraint("DistanceY", 3, 3, 2, 3, 77.736729))
sketch18.addConstraint(Sketcher.Constraint("DistanceX", 1, 3, 4, 3, 13.823459))
sketch18.addConstraint(Sketcher.Constraint("DistanceX", 3, 3, 5, 3, 340.104689))
sketch18.addConstraint(Sketcher.Constraint("DistanceY", -1, 1, 0, 3, 341.065218))
sketch18.addConstraint(Sketcher.Constraint("DistanceY", -1, 1, 2, 3, 337.678283))
sketch18.addConstraint(Sketcher.Constraint("DistanceX", -1, 1, 3, 3, 31.642655))
pocket12 = body.newObject("PartDesign::Pocket", "Pocket011")
pocket12.Profile = sketch18
pocket12.Length = 10

# Sketch on XY plane
sketch19 = body.newObject("Sketcher::SketchObject", "Sketch018")
sketch19.AttachmentSupport = (doc.getObject("XY_Plane"), [""])
sketch19.MapMode = "FlatFace"
sketch19.AttachmentOffset = App.Placement(App.Vector(0, 0, 3), App.Rotation())
sketch19.addGeometry(Part.Circle(App.Vector(144.7, 341.1, 0), App.Vector(0, 0, 1), 1.5), False)
sketch19.addGeometry(Part.Circle(App.Vector(258.7, 341.1, 0), App.Vector(0, 0, 1), 1.5), False)
sketch19.addConstraint(Sketcher.Constraint("Equal", 0, 1))
sketch19.addConstraint(Sketcher.Constraint("Horizontal", 0, 3, 1, 3))
sketch19.addConstraint(Sketcher.Constraint("Diameter", 0, 3.0))
sketch19.addConstraint(Sketcher.Constraint("DistanceX", 0, 3, 1, 3, 114.0))
sketch19.addConstraint(Sketcher.Constraint("DistanceX", -1, 1, 0, 3, 144.695))
sketch19.addConstraint(Sketcher.Constraint("DistanceY", -1, 1, 0, 3, 341.065218))
pocket13 = body.newObject("PartDesign::Pocket", "Pocket012")
pocket13.Profile = sketch19
pocket13.Length = 30

# Sketch on XY plane
sketch20 = body.newObject("Sketcher::SketchObject", "Sketch019")
sketch20.AttachmentSupport = (doc.getObject("XY_Plane"), [""])
sketch20.MapMode = "FlatFace"
sketch20.AttachmentOffset = App.Placement(App.Vector(0, 0, 3), App.Rotation())
sketch20.addGeometry(Part.ArcOfCircle(Part.Circle(App.Vector(146.6, 341.1, 0), App.Vector(0, 0, 1), 1.5), math.radians(129), math.radians(231)), False)
sketch20.addGeometry(Part.ArcOfCircle(Part.Circle(App.Vector(144.7, 341.1, 0), App.Vector(0, 0, 1), 1.5), math.radians(51), math.radians(309)), False)
sketch20.addGeometry(Part.Circle(App.Vector(255, 341.1, 0), App.Vector(0, 0, 1), 1.5), False)
sketch20.addConstraint(Sketcher.Constraint("Coincident", 0, 1, 1, 1))
sketch20.addConstraint(Sketcher.Constraint("Coincident", 1, 2, 0, 2))
sketch20.addConstraint(Sketcher.Constraint("Equal", 0, 1))
sketch20.addConstraint(Sketcher.Constraint("Equal", 1, 2))
sketch20.addConstraint(Sketcher.Constraint("Horizontal", 0, 3, 1, 3))
sketch20.addConstraint(Sketcher.Constraint("Horizontal", 1, 3, 2, 3))
sketch20.addConstraint(Sketcher.Constraint("Diameter", 2, 3.0))
sketch20.addConstraint(Sketcher.Constraint("DistanceX", -1, 1, 1, 3, 144.695))
sketch20.addConstraint(Sketcher.Constraint("DistanceX", -1, 1, 0, 1, 145.631861))
sketch20.addConstraint(Sketcher.Constraint("DistanceY", -1, 1, 1, 2, 339.89377))
sketch20.addConstraint(Sketcher.Constraint("DistanceX", 0, 3, 2, 3, 108.40857))
pad7 = body.newObject("PartDesign::Pad", "Pad006")
pad7.Profile = sketch20
pad7.Length = 3
pad7.Reversed = True

# Sketch on XY plane
sketch21 = body.newObject("Sketcher::SketchObject", "Sketch020")
sketch21.AttachmentSupport = (doc.getObject("XY_Plane"), [""])
sketch21.MapMode = "FlatFace"
sketch21.AttachmentOffset = App.Placement(App.Vector(0, 0, 3), App.Rotation())
sketch21.addGeometry(Part.Circle(App.Vector(144.7, 341.1, 0), App.Vector(0, 0, 1), 1.5), False)
sketch21.addConstraint(Sketcher.Constraint("Diameter", 0, 3.0))
sketch21.addConstraint(Sketcher.Constraint("DistanceX", -1, 1, 0, 3, 144.695))
sketch21.addConstraint(Sketcher.Constraint("DistanceY", -1, 1, 0, 3, 341.065218))
pocket14 = body.newObject("PartDesign::Pocket", "Pocket013")
pocket14.Profile = sketch21
pocket14.Length = 3

# Sketch on XY plane
sketch22 = body.newObject("Sketcher::SketchObject", "Sketch021")
sketch22.AttachmentSupport = (doc.getObject("XY_Plane"), [""])
sketch22.MapMode = "FlatFace"
sketch22.AttachmentOffset = App.Placement(App.Vector(0, 0, 3), App.Rotation())
sketch22.addGeometry(Part.ArcOfCircle(Part.Circle(App.Vector(144.7, 341.1, 0), App.Vector(0, 0, 1), 1.5), math.radians(0), math.radians(51)), False)
sketch22.addGeometry(Part.ArcOfCircle(Part.Circle(App.Vector(144.7, 341.1, 0), App.Vector(0, 0, 1), 1.5), math.radians(-51), math.radians(0)), False)
sketch22.addGeometry(Part.ArcOfCircle(Part.Circle(App.Vector(146.6, 341.1, 0), App.Vector(0, 0, 1), 1.5), math.radians(-129), math.radians(0)), False)
sketch22.addGeometry(Part.ArcOfCircle(Part.Circle(App.Vector(146.6, 341.1, 0), App.Vector(0, 0, 1), 1.5), math.radians(0), math.radians(129)), False)
sketch22.addConstraint(Sketcher.Constraint("Tangent", 0, 1, 1, 2))
sketch22.addConstraint(Sketcher.Constraint("Coincident", 1, 1, 2, 1))
sketch22.addConstraint(Sketcher.Constraint("Tangent", 2, 2, 3, 1))
sketch22.addConstraint(Sketcher.Constraint("Coincident", 3, 2, 0, 2))
sketch22.addConstraint(Sketcher.Constraint("Equal", 0, 1))
sketch22.addConstraint(Sketcher.Constraint("Equal", 1, 2))
sketch22.addConstraint(Sketcher.Constraint("Equal", 2, 3))
sketch22.addConstraint(Sketcher.Constraint("Horizontal", 1, 3, 2, 3))
sketch22.addConstraint(Sketcher.Constraint("Horizontal", 3, 3, 0, 1))
sketch22.addConstraint(Sketcher.Constraint("Horizontal", 0, 1, 2, 2))
sketch22.addConstraint(Sketcher.Constraint("Radius", 0, 1.5))
sketch22.addConstraint(Sketcher.Constraint("DistanceX", -1, 1, 0, 3, 144.695))
sketch22.addConstraint(Sketcher.Constraint("DistanceX", -1, 1, 1, 1, 145.631861))
sketch22.addConstraint(Sketcher.Constraint("DistanceY", -1, 1, 1, 1, 339.89377))
pad8 = body.newObject("PartDesign::Pad", "Pad007")
pad8.Profile = sketch22
pad8.Length = 3
pad8.Reversed = True

# Sketch on XY plane
sketch23 = body.newObject("Sketcher::SketchObject", "Sketch022")
sketch23.AttachmentSupport = (doc.getObject("XY_Plane"), [""])
sketch23.MapMode = "FlatFace"
sketch23.AttachmentOffset = App.Placement(App.Vector(0, 0, 3), App.Rotation())
sketch23.addGeometry(Part.ArcOfCircle(Part.Circle(App.Vector(164, 197, 0), App.Vector(0, 0, 1), 8), math.radians(0), math.radians(90)), False)
sketch23.addGeometry(Part.LineSegment(App.Vector(164, 205, 0), App.Vector(153, 205, 0)), False)
sketch23.addGeometry(Part.LineSegment(App.Vector(153, 205, 0), App.Vector(153, 171, 0)), False)
sketch23.addGeometry(Part.LineSegment(App.Vector(153, 171, 0), App.Vector(171, 171, 0)), False)
sketch23.addGeometry(Part.LineSegment(App.Vector(171, 171, 0), App.Vector(171, 197, 0)), False)
sketch23.addGeometry(Part.LineSegment(App.Vector(250, 205, 0), App.Vector(239, 205, 0)), False)
sketch23.addGeometry(Part.ArcOfCircle(Part.Circle(App.Vector(239, 197, 0), App.Vector(0, 0, 1), 8), math.radians(90), math.radians(180)), False)
sketch23.addGeometry(Part.LineSegment(App.Vector(232, 197, 0), App.Vector(232, 171, 0)), False)
sketch23.addGeometry(Part.LineSegment(App.Vector(232, 171, 0), App.Vector(250, 171, 0)), False)
sketch23.addGeometry(Part.LineSegment(App.Vector(250, 171, 0), App.Vector(250, 205, 0)), False)
sketch23.addConstraint(Sketcher.Constraint("Tangent", 0, 2, 1, 1))
sketch23.addConstraint(Sketcher.Constraint("Coincident", 1, 2, 2, 1))
sketch23.addConstraint(Sketcher.Constraint("Coincident", 2, 2, 3, 1))
sketch23.addConstraint(Sketcher.Constraint("Coincident", 3, 2, 4, 1))
sketch23.addConstraint(Sketcher.Constraint("Tangent", 4, 2, 0, 1))
sketch23.addConstraint(Sketcher.Constraint("Tangent", 5, 2, 6, 1))
sketch23.addConstraint(Sketcher.Constraint("Tangent", 6, 2, 7, 1))
sketch23.addConstraint(Sketcher.Constraint("Coincident", 7, 2, 8, 1))
sketch23.addConstraint(Sketcher.Constraint("Coincident", 8, 2, 9, 1))
sketch23.addConstraint(Sketcher.Constraint("Coincident", 9, 2, 5, 1))
sketch23.addConstraint(Sketcher.Constraint("Horizontal", 1))
sketch23.addConstraint(Sketcher.Constraint("Vertical", 2))
sketch23.addConstraint(Sketcher.Constraint("Horizontal", 3))
sketch23.addConstraint(Sketcher.Constraint("Vertical", 4))
sketch23.addConstraint(Sketcher.Constraint("Horizontal", 5))
sketch23.addConstraint(Sketcher.Constraint("Vertical", 7))
sketch23.addConstraint(Sketcher.Constraint("Horizontal", 8))
sketch23.addConstraint(Sketcher.Constraint("Vertical", 9))
sketch23.addConstraint(Sketcher.Constraint("Equal", 0, 6))
sketch23.addConstraint(Sketcher.Constraint("Horizontal", 0, 3, 6, 3))
sketch23.addConstraint(Sketcher.Constraint("Horizontal", 3, 2, 7, 2))
sketch23.addConstraint(Sketcher.Constraint("Equal", 1, 5))
sketch23.addConstraint(Sketcher.Constraint("Radius", 0, 7.5))
sketch23.addConstraint(Sketcher.Constraint("DistanceX", 3, 2, 6, 3, 68.0))
sketch23.addConstraint(Sketcher.Constraint("DistanceX", 1, 2, 1, 1, 10.85))
sketch23.addConstraint(Sketcher.Constraint("DistanceY", 2, 2, 2, 1, 33.35))
sketch23.addConstraint(Sketcher.Constraint("DistanceY", -1, 1, 2, 2, 171.4))
sketch23.addConstraint(Sketcher.Constraint("DistanceX", -1, 1, 0, 3, 163.945))
pocket15 = body.newObject("PartDesign::Pocket", "Pocket014")
pocket15.Profile = sketch23
pocket15.Length = 10

# Sketch on XY plane
sketch24 = body.newObject("Sketcher::SketchObject", "Sketch023")
sketch24.AttachmentSupport = (doc.getObject("XY_Plane"), [""])
sketch24.MapMode = "FlatFace"
sketch24.AttachmentOffset = App.Placement(App.Vector(0, 0, 3), App.Rotation())
add_polygon(sketch24, [(196, 30), (208, 30), (208, 68), (196, 68)])  # lines 0-3
sketch24.addConstraint(Sketcher.Constraint("Horizontal", 0))
sketch24.addConstraint(Sketcher.Constraint("Vertical", 1))
sketch24.addConstraint(Sketcher.Constraint("Horizontal", 2))
sketch24.addConstraint(Sketcher.Constraint("Vertical", 3))
sketch24.addConstraint(Sketcher.Constraint("DistanceX", 0, 1, 0, 2, 12.0))
sketch24.addConstraint(Sketcher.Constraint("DistanceY", 1, 1, 1, 2, 38.0))
sketch24.addConstraint(Sketcher.Constraint("DistanceY", -1, 1, 0, 2, 30.0))
sketch24.addConstraint(Sketcher.Constraint("DistanceX", -1, 1, 0, 2, 207.695))
pocket16 = body.newObject("PartDesign::Pocket", "Pocket015")
pocket16.Profile = sketch24
pocket16.Length = 10

doc.recompute()
